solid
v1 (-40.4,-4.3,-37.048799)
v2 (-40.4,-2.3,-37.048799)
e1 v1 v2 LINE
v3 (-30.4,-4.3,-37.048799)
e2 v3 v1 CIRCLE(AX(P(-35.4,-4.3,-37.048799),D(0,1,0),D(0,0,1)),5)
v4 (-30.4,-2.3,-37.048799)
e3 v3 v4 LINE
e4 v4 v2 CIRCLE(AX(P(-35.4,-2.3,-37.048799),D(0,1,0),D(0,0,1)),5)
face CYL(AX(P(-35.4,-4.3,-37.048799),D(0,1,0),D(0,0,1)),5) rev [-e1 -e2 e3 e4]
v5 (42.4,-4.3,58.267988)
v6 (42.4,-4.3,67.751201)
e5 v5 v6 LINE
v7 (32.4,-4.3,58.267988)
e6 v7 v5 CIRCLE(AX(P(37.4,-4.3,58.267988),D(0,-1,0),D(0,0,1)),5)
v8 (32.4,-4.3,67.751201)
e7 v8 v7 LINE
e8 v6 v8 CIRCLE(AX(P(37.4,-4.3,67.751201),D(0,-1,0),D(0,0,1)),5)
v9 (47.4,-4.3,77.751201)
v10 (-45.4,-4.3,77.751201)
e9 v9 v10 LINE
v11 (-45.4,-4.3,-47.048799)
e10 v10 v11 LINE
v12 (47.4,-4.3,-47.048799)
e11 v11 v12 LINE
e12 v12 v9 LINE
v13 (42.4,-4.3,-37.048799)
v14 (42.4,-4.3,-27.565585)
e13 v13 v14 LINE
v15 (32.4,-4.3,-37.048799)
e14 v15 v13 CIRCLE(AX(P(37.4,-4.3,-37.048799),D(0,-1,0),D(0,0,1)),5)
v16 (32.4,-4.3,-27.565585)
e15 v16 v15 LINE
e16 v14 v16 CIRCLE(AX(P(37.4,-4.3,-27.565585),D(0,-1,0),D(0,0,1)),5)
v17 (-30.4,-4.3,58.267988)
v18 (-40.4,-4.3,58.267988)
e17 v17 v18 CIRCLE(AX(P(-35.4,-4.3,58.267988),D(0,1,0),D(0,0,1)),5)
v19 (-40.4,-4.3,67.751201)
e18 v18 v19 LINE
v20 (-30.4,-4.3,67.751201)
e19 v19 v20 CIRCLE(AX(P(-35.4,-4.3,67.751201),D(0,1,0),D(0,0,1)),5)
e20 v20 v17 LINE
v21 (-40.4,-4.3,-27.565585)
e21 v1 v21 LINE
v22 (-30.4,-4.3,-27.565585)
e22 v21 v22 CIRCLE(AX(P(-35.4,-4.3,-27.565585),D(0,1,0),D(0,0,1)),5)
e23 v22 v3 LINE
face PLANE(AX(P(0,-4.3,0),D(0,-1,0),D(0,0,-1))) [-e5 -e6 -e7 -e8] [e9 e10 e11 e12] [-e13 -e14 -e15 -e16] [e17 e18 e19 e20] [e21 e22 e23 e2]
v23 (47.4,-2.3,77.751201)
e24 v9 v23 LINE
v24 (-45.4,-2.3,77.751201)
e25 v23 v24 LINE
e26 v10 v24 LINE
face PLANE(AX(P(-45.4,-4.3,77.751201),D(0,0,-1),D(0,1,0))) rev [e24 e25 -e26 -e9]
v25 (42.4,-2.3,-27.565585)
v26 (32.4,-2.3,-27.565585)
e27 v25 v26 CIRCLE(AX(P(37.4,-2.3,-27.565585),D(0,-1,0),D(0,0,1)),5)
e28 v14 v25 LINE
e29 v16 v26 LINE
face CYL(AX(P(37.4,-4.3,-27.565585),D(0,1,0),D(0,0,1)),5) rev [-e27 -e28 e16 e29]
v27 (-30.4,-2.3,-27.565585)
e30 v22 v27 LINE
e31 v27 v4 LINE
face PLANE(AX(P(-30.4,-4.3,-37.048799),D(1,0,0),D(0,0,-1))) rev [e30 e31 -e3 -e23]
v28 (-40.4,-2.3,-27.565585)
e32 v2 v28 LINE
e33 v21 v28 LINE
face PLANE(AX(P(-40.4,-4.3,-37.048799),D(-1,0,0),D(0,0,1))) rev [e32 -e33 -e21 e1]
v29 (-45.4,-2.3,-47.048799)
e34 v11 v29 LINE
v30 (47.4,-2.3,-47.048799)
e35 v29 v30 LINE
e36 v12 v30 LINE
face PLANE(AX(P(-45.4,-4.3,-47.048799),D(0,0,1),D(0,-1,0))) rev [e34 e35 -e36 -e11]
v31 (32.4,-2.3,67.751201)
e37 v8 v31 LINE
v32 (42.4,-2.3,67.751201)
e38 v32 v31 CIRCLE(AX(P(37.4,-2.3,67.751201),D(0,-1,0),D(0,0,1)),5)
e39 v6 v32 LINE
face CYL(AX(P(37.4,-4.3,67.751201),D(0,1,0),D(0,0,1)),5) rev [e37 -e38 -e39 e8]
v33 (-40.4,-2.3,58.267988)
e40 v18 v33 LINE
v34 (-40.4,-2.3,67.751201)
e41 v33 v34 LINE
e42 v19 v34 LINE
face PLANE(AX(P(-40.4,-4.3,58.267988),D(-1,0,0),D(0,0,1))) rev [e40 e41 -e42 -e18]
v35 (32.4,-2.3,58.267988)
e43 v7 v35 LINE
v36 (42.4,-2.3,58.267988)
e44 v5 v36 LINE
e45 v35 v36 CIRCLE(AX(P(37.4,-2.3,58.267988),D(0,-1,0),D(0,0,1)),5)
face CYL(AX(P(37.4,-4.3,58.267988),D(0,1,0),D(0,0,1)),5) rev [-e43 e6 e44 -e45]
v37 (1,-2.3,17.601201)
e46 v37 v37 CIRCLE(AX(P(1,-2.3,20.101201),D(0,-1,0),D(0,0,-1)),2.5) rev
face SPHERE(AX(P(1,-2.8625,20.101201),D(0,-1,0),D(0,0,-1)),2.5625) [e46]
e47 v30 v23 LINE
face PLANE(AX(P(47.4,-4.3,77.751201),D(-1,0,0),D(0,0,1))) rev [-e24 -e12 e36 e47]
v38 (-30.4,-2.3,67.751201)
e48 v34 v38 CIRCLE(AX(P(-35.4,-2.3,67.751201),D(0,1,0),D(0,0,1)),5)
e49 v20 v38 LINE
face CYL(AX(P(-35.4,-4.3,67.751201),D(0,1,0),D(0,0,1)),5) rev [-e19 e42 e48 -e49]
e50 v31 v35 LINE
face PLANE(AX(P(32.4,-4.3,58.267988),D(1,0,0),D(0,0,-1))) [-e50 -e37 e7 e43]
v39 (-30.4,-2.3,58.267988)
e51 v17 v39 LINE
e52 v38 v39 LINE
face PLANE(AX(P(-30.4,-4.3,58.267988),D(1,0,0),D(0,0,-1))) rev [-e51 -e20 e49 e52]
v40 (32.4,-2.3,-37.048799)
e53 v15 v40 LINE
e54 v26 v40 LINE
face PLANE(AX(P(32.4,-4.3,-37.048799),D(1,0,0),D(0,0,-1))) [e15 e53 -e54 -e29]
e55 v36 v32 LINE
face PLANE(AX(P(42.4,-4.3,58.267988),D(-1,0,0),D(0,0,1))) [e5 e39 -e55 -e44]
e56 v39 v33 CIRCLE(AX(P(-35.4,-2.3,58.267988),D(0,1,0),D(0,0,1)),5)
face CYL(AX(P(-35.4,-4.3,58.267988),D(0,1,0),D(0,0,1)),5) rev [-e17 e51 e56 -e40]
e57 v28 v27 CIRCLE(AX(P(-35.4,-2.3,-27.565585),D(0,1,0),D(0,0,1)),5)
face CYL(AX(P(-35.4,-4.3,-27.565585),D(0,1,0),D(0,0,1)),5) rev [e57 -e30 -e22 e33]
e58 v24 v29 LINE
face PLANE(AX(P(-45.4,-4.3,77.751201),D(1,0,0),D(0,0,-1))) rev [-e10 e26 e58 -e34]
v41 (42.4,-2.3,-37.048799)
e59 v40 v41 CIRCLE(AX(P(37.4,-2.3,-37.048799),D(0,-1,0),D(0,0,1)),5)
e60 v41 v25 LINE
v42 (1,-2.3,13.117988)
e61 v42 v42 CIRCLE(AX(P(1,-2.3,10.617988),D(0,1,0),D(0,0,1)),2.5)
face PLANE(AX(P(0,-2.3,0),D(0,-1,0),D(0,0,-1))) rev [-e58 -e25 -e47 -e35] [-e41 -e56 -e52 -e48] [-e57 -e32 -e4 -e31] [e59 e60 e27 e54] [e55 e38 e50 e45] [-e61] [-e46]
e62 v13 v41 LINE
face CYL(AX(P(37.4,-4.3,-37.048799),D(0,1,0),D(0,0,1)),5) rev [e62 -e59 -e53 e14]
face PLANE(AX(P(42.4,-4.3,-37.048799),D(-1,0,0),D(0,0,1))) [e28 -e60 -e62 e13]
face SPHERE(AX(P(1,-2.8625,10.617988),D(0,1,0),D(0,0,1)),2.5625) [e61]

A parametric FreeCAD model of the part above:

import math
import FreeCAD as App
import Part
import Sketcher
from FreeCAD import Vector
Q = App.Units.Quantity

doc = App.newDocument("Part")
body = doc.addObject("PartDesign::Body", "Body")

# Sketch on XZ plane
sketch1 = body.newObject("Sketcher::SketchObject", "Sketch")
sketch1.AttachmentSupport = (doc.getObject("XZ_Plane"), [""])
sketch1.MapMode = "FlatFace"
sketch1.AttachmentOffset = App.Placement(Vector(0, 0, 2.3), App.Rotation())
sketch1.addGeometry([
    Part.LineSegment(Vector(47, -47, 0), Vector(47, 78, 0)),
    Part.LineSegment(Vector(47, 78, 0), Vector(-45, 78, 0)),
    Part.LineSegment(Vector(-45, 78, 0), Vector(-45, -47, 0)),
    Part.LineSegment(Vector(-45, -47, 0), Vector(47, -47, 0)),
], False)
sketch1.addConstraint([
    Sketcher.Constraint("Coincident", 0, 2, 1, 1),
    Sketcher.Constraint("Coincident", 1, 2, 2, 1),
    Sketcher.Constraint("Coincident", 2, 2, 3, 1),
    Sketcher.Constraint("Coincident", 3, 2, 0, 1),
    Sketcher.Constraint("Vertical", 0),
    Sketcher.Constraint("Horizontal", 1),
    Sketcher.Constraint("Vertical", 2),
    Sketcher.Constraint("Horizontal", 3),
    Sketcher.Constraint("DistanceX", 1, 2, 1, 1, Q("92.8 mm")),
    Sketcher.Constraint("DistanceY", 0, 1, 0, 2, Q("124.8 mm")),
    Sketcher.Constraint("DistanceX", -1, 1, 0, 2, Q("47.4 mm")),
    Sketcher.Constraint("DistanceY", -1, 1, 0, 2, Q("77.751201 mm")),
])
pad1 = body.newObject("PartDesign::Pad", "Pad")
pad1.Profile = sketch1
pad1.Length = 2

# Sketch on YZ plane
sketch2 = body.newObject("Sketcher::SketchObject", "Sketch001")
sketch2.AttachmentSupport = (doc.getObject("YZ_Plane"), [""])
sketch2.MapMode = "FlatFace"
sketch2.AttachmentOffset = App.Placement(Vector(0, 0, 1), App.Rotation())
sketch2.addGeometry([
    Part.LineSegment(Vector(-2.3, 8.1, 0), Vector(-2.3, 10.6, 0)),
    Part.LineSegment(Vector(-2.3, 10.6, 0), Vector(-0.3, 10.6, 0)),
    Part.ArcOfCircle(Part.Circle(Vector(-2.9, 10.6, 0), Vector(0, 0, 1), 2.6), math.radians(-77), math.radians(0)),
], False)
sketch2.addGeometry(Part.LineSegment(Vector(-0.3, 10.6, 0), Vector(-2.9, 10.6, 0)), True)  # axis
sketch2.addConstraint([
    Sketcher.Constraint("Coincident", 0, 2, 1, 1),
    Sketcher.Constraint("Coincident", 1, 2, 2, 2),
    Sketcher.Constraint("Coincident", 2, 1, 0, 1),
    Sketcher.Constraint("Vertical", 0),
    Sketcher.Constraint("Horizontal", 1),
    Sketcher.Constraint("Horizontal", 3),
    Sketcher.Constraint("Coincident", 3, 1, 1, 2),
    Sketcher.Constraint("Coincident", 3, 2, 2, 3),
    Sketcher.Constraint("DistanceX", 1, 1, 1, 2, Q("2 mm")),
    Sketcher.Constraint("DistanceY", 0, 1, 0, 2, Q("2.5 mm")),
    Sketcher.Constraint("DistanceX", 0, 2, -1, 1, Q("2.3 mm")),
    Sketcher.Constraint("DistanceY", -1, 1, 2, 3, Q("10.617988 mm")),
])
revolution = body.newObject("PartDesign::Revolution", "Revolution")
revolution.Profile = sketch2
revolution.ReferenceAxis = (sketch2, ["Axis0"])
revolution.Angle = 360

# Sketch on YZ plane
sketch3 = body.newObject("Sketcher::SketchObject", "Sketch002")
sketch3.AttachmentSupport = (doc.getObject("YZ_Plane"), [""])
sketch3.MapMode = "FlatFace"
sketch3.AttachmentOffset = App.Placement(Vector(0, 0, 1), App.Rotation())
sketch3.addGeometry([
    Part.LineSegment(Vector(-2.3, 20.1, 0), Vector(-0.3, 20.1, 0)),
    Part.ArcOfCircle(Part.Circle(Vector(-2.9, 20.1, 0), Vector(0, 0, 1), 2.6), math.radians(-77), math.radians(0)),
    Part.LineSegment(Vector(-2.3, 17.6, 0), Vector(-2.3, 20.1, 0)),
], False)
sketch3.addGeometry(Part.LineSegment(Vector(-2.9, 20.1, 0), Vector(-0.3, 20.1, 0)), True)  # axis
sketch3.addConstraint([
    Sketcher.Constraint("Coincident", 0, 2, 1, 2),
    Sketcher.Constraint("Coincident", 1, 1, 2, 1),
    Sketcher.Constraint("Coincident", 2, 2, 0, 1),
    Sketcher.Constraint("Horizontal", 0),
    Sketcher.Constraint("Vertical", 2),
    Sketcher.Constraint("Horizontal", 3),
    Sketcher.Constraint("Coincident", 3, 1, 1, 3),
    Sketcher.Constraint("Coincident", 3, 2, 0, 2),
    Sketcher.Constraint("DistanceX", 0, 1, 0, 2, Q("2 mm")),
    Sketcher.Constraint("DistanceY", 2, 1, 2, 2, Q("2.5 mm")),
    Sketcher.Constraint("DistanceX", 0, 2, -1, 1, Q("0.3 mm")),
    Sketcher.Constraint("DistanceY", -1, 1, 1, 3, Q("20.101201 mm")),
])
revolution2 = body.newObject("PartDesign::Revolution", "Revolution001")
revolution2.Profile = sketch3
revolution2.ReferenceAxis = (sketch3, ["Axis0"])
revolution2.Angle = 360

# Sketch on XZ plane
sketch4 = body.newObject("Sketcher::SketchObject", "Sketch003")
sketch4.AttachmentSupport = (doc.getObject("XZ_Plane"), [""])
sketch4.MapMode = "FlatFace"
sketch4.AttachmentOffset = App.Placement(Vector(0, 0, 2.3), App.Rotation())
sketch4.addGeometry([
    Part.LineSegment(Vector(-30, -28, 0), Vector(-30, -37, 0)),  # 0
    Part.ArcOfCircle(Part.Circle(Vector(-35, -37, 0), Vector(0, 0, 1), 5), math.radians(180), math.radians(360)),  # 1
    Part.LineSegment(Vector(-40, -37, 0), Vector(-40, -28, 0)),  # 2
    Part.ArcOfCircle(Part.Circle(Vector(-35, -28, 0), Vector(0, 0, 1), 5), math.radians(0), math.radians(180)),  # 3
    Part.LineSegment(Vector(-30, 68, 0), Vector(-30, 58, 0)),  # 4
    Part.ArcOfCircle(Part.Circle(Vector(-35, 58, 0), Vector(0, 0, 1), 5), math.radians(180), math.radians(360)),  # 5
    Part.LineSegment(Vector(-40, 58, 0), Vector(-40, 68, 0)),  # 6
    Part.ArcOfCircle(Part.Circle(Vector(-35, 68, 0), Vector(0, 0, 1), 5), math.radians(0), math.radians(180)),  # 7
], False)
sketch4.addConstraint([
    Sketcher.Constraint("Tangent", 0, 2, 1, 2),
    Sketcher.Constraint("Tangent", 1, 1, 2, 1),
    Sketcher.Constraint("Tangent", 2, 2, 3, 2),
    Sketcher.Constraint("Tangent", 3, 1, 0, 1),
    Sketcher.Constraint("Tangent", 4, 2, 5, 2),
    Sketcher.Constraint("Tangent", 5, 1, 6, 1),
    Sketcher.Constraint("Tangent", 6, 2, 7, 2),
    Sketcher.Constraint("Tangent", 7, 1, 4, 1),
    Sketcher.Constraint("Vertical", 0),
    Sketcher.Constraint("Vertical", 2),
    Sketcher.Constraint("Vertical", 4),
    Sketcher.Constraint("Vertical", 6),
    Sketcher.Constraint("Equal", 3, 5),
    Sketcher.Constraint("Vertical", 3, 3, 5, 3),
    Sketcher.Constraint("Equal", 2, 4),
    Sketcher.Constraint("Radius", 1, Q("5 mm")),
    Sketcher.Constraint("DistanceX", 1, 3, -1, 1, Q("35.4 mm")),
    Sketcher.Constraint("DistanceY", 1, 3, 7, 3, Q("104.8 mm")),
    Sketcher.Constraint("DistanceY", 1, 3, -1, 1, Q("37.048799 mm")),
    Sketcher.Constraint("DistanceY", 0, 2, 0, 1, Q("9.483213 mm")),
])
pocket1 = body.newObject("PartDesign::Pocket", "Pocket")
pocket1.Profile = sketch4
pocket1.Type = "ThroughAll"
pocket1.Reversed = True
doc.recompute()

datumplane = body.newObject("PartDesign::Plane", "DatumPlane")
datumplane.AttachmentSupport = (doc.getObject("YZ_Plane"), [""])
datumplane.MapMode = "FlatFace"
datumplane.AttachmentOffset = App.Placement(Vector(0, 0, 1), App.Rotation())
mirrored = body.newObject("PartDesign::Mirrored", "Mirrored")
mirrored.Originals = [pocket1]
mirrored.MirrorPlane = (datumplane, [""])
body.Tip = mirrored

doc.recompute()
